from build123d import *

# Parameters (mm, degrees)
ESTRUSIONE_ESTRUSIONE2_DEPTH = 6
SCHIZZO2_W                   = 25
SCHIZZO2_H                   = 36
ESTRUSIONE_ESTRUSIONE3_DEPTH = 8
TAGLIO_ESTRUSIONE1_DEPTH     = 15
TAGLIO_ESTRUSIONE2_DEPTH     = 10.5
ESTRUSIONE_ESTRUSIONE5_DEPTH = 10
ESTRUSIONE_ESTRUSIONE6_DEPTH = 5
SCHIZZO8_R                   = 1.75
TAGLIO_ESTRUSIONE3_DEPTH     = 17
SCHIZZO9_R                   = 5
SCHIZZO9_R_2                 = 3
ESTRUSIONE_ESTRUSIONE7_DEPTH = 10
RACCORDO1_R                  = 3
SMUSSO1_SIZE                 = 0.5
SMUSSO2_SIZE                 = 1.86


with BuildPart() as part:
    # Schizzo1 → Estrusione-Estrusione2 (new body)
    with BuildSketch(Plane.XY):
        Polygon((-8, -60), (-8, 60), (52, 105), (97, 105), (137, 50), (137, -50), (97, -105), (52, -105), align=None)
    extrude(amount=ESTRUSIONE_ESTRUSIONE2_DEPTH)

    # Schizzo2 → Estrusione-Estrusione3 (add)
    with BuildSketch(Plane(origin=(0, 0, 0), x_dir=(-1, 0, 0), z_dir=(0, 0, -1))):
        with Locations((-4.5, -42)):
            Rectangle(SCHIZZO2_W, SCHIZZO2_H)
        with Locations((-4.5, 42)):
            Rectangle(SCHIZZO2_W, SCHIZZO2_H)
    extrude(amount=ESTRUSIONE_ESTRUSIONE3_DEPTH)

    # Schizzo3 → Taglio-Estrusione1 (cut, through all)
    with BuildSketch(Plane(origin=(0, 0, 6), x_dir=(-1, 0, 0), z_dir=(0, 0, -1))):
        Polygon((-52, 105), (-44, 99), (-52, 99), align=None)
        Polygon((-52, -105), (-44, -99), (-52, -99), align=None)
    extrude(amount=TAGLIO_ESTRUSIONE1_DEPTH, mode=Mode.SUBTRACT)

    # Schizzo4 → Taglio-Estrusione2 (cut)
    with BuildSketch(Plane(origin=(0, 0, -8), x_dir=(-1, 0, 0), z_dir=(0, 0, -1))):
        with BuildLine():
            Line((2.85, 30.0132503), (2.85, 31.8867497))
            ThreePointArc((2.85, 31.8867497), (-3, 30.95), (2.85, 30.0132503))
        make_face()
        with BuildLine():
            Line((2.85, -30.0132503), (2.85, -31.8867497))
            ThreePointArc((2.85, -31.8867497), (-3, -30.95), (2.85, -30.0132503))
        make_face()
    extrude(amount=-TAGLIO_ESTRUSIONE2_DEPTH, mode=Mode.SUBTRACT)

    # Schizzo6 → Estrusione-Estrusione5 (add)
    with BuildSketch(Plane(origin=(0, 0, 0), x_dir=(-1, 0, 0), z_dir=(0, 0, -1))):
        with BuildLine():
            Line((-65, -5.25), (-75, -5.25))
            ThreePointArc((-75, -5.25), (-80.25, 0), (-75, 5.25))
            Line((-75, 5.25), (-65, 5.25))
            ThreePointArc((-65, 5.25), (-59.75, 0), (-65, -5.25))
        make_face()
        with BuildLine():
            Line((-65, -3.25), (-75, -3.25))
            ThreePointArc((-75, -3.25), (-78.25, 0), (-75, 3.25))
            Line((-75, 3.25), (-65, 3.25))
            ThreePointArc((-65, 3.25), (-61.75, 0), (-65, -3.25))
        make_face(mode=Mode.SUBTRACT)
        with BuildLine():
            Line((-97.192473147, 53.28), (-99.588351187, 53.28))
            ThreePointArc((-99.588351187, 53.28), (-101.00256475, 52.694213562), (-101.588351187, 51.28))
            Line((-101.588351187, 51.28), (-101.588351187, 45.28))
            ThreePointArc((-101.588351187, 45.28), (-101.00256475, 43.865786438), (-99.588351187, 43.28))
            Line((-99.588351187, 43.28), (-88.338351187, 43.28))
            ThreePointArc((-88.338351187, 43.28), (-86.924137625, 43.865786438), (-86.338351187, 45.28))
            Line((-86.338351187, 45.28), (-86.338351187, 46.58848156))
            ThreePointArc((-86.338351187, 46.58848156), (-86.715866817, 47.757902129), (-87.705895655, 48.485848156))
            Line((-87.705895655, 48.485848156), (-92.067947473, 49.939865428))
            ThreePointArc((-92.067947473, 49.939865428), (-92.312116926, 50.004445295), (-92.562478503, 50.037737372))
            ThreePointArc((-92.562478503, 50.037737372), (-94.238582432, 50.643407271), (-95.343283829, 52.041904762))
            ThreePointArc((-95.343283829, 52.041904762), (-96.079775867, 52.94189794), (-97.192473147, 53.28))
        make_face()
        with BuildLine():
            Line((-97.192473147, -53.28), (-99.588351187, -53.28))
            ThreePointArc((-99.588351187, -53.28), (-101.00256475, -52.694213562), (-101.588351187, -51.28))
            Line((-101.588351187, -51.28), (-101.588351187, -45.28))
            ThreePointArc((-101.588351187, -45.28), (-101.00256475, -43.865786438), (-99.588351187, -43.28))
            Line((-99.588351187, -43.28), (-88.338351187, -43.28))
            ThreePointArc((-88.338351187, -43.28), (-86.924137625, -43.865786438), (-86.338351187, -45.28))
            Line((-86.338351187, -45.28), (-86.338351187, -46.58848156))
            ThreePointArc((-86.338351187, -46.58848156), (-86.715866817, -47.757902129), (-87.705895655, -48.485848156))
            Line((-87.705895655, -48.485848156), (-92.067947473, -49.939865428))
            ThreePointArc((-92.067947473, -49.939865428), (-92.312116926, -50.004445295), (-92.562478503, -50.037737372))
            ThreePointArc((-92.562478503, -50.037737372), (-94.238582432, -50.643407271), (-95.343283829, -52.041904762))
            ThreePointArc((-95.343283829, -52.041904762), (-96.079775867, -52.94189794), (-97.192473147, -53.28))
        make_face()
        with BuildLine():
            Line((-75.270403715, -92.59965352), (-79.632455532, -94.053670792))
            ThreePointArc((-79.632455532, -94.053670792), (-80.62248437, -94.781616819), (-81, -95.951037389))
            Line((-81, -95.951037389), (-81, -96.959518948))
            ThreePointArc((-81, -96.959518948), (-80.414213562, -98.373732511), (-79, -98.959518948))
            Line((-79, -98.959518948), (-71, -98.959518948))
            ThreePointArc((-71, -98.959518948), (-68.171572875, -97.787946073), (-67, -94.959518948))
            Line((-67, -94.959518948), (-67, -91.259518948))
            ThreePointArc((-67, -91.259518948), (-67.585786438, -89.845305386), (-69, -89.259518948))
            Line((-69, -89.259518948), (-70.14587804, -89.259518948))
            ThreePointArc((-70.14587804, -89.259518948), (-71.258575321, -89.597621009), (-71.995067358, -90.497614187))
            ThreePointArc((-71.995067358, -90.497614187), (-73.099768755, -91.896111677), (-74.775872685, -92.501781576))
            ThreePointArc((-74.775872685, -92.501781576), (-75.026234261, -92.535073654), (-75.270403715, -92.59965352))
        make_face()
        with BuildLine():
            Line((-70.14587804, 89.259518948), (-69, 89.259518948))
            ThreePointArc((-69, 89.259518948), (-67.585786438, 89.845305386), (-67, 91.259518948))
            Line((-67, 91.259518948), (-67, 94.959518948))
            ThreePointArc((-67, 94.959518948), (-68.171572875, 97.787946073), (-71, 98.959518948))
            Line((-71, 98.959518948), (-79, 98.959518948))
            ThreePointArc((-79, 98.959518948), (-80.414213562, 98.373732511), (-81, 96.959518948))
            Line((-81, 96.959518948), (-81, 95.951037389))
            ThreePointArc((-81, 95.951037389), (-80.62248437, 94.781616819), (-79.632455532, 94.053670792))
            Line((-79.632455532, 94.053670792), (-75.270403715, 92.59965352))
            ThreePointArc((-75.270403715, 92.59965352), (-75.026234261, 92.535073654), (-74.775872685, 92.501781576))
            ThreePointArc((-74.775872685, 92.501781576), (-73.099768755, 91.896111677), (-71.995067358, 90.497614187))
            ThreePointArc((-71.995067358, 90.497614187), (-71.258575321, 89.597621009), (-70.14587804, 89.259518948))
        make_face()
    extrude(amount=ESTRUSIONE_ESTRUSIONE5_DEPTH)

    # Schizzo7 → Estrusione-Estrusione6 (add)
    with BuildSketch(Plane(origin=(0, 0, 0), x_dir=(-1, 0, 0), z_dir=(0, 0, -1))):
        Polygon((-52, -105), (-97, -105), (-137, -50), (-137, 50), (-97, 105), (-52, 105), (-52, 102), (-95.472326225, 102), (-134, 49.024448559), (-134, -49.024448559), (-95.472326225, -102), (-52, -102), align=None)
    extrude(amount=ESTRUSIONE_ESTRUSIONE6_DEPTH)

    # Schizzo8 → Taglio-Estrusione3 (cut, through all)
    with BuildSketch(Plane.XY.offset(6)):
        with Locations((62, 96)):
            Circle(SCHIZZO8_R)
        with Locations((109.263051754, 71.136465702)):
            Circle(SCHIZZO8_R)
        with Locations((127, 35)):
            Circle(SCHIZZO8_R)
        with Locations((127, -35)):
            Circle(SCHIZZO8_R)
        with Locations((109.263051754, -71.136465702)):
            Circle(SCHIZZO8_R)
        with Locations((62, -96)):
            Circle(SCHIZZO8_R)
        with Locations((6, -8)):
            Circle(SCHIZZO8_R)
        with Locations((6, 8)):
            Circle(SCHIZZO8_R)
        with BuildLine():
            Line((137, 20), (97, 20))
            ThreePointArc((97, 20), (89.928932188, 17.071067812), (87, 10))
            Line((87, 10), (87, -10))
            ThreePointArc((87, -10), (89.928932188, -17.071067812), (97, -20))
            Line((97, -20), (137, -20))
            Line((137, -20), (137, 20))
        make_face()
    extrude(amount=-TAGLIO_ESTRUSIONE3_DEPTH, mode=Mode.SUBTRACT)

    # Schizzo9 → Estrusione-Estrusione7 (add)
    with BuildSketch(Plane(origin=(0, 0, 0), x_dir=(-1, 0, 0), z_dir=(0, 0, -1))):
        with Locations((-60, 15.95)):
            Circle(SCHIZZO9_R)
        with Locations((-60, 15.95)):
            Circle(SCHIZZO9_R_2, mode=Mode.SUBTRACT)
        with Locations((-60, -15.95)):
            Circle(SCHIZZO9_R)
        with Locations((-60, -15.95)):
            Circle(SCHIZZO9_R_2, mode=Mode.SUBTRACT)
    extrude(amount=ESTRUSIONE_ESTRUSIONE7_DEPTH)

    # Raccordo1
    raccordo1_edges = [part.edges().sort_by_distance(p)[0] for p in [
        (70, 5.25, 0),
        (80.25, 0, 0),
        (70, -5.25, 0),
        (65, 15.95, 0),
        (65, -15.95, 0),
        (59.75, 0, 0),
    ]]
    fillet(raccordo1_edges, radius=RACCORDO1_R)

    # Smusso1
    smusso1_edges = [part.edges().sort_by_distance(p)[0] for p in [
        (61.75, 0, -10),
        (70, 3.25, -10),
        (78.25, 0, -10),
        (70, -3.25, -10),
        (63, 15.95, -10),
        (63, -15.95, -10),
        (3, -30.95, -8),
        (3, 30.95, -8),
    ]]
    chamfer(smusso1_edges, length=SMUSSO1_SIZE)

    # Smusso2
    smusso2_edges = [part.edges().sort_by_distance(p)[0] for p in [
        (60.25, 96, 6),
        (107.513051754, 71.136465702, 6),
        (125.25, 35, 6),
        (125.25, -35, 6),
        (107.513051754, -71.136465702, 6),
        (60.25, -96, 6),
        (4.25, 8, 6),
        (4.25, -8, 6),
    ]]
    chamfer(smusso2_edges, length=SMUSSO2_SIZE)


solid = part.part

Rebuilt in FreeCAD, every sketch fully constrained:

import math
import FreeCAD as App
import Part
import Sketcher
from FreeCAD import Vector
Q = App.Units.Quantity


def edges_at(feature, points):
    """Names of the edges that pass closest to the given points."""
    edges = feature.Shape.Edges
    near = lambda p: min(range(len(edges)), key=lambda i: edges[i].distToShape(Part.Vertex(*p))[0])
    return sorted({f"Edge{near(p) + 1}" for p in points})

doc = App.newDocument("Part")
body = doc.addObject("PartDesign::Body", "Body")

sketch1 = doc.addObject("Sketcher::SketchObject", "Sketch")
body.addObject(sketch1)
sketch1.AttachmentSupport = (doc.XY_Plane, [""])
sketch1.MapMode = "FlatFace"
sketch1.addGeometry([
    Part.LineSegment(Vector(-8, 60, 0), Vector(-8, -60, 0)),
    Part.LineSegment(Vector(-8, -60, 0), Vector(52, -105, 0)),
    Part.LineSegment(Vector(52, -105, 0), Vector(97, -105, 0)),
    Part.LineSegment(Vector(97, -105, 0), Vector(137, -50, 0)),
    Part.LineSegment(Vector(137, -50, 0), Vector(137, 50, 0)),
    Part.LineSegment(Vector(137, 50, 0), Vector(97, 105, 0)),
    Part.LineSegment(Vector(97, 105, 0), Vector(52, 105, 0)),
    Part.LineSegment(Vector(52, 105, 0), Vector(-8, 60, 0)),
], False)
sketch1.addConstraint([
    Sketcher.Constraint("Coincident", 0, 2, 1, 1),
    Sketcher.Constraint("Coincident", 1, 2, 2, 1),
    Sketcher.Constraint("Coincident", 2, 2, 3, 1),
    Sketcher.Constraint("Coincident", 3, 2, 4, 1),
    Sketcher.Constraint("Coincident", 4, 2, 5, 1),
    Sketcher.Constraint("Coincident", 5, 2, 6, 1),
    Sketcher.Constraint("Coincident", 6, 2, 7, 1),
    Sketcher.Constraint("Coincident", 7, 2, 0, 1),
    Sketcher.Constraint("Vertical", 0),
    Sketcher.Constraint("Horizontal", 2),
    Sketcher.Constraint("Vertical", 4),
    Sketcher.Constraint("Horizontal", 6),
    Sketcher.Constraint("Symmetric", 2, 2, 5, 2, -1),
    Sketcher.Constraint("Vertical", 1, 2, 6, 2),
    Sketcher.Constraint("Equal", 3, 5),
    Sketcher.Constraint("Equal", 1, 7),
    Sketcher.Constraint("DistanceX", 2, 1, 2, 2, Q("45 mm")),
    Sketcher.Constraint("DistanceY", 0, 2, 0, 1, Q("120 mm")),
    Sketcher.Constraint("DistanceY", 4, 1, 4, 2, Q("100 mm")),
    Sketcher.Constraint("Distance", 1, Q("75 mm")),
    Sketcher.Constraint("DistanceX", 0, 2, -1, 1, Q("8 mm")),
    Sketcher.Constraint("DistanceX", -1, 1, 1, 2, Q("52 mm")),
    Sketcher.Constraint("DistanceX", -1, 1, 3, 2, Q("137 mm")),
])
pad1 = doc.addObject("PartDesign::Pad", "Pad")
body.addObject(pad1)
pad1.Profile = sketch1
pad1.Length = 6

sketch2 = doc.addObject("Sketcher::SketchObject", "Sketch001")
body.addObject(sketch2)
sketch2.AttachmentSupport = (doc.XY_Plane, [""])
sketch2.MapMode = "FlatFace"
sketch2.addGeometry([
    Part.LineSegment(Vector(17, -24, 0), Vector(17, -60, 0)),
    Part.LineSegment(Vector(17, -60, 0), Vector(-8, -60, 0)),
    Part.LineSegment(Vector(-8, -60, 0), Vector(-8, -24, 0)),
    Part.LineSegment(Vector(-8, -24, 0), Vector(17, -24, 0)),
    Part.LineSegment(Vector(17, 60, 0), Vector(17, 24, 0)),
    Part.LineSegment(Vector(17, 24, 0), Vector(-8, 24, 0)),
    Part.LineSegment(Vector(-8, 24, 0), Vector(-8, 60, 0)),
    Part.LineSegment(Vector(-8, 60, 0), Vector(17, 60, 0)),
], False)
sketch2.addConstraint([
    Sketcher.Constraint("Coincident", 0, 2, 1, 1),
    Sketcher.Constraint("Coincident", 1, 2, 2, 1),
    Sketcher.Constraint("Coincident", 2, 2, 3, 1),
    Sketcher.Constraint("Coincident", 3, 2, 0, 1),
    Sketcher.Constraint("Coincident", 4, 2, 5, 1),
    Sketcher.Constraint("Coincident", 5, 2, 6, 1),
    Sketcher.Constraint("Coincident", 6, 2, 7, 1),
    Sketcher.Constraint("Coincident", 7, 2, 4, 1),
    Sketcher.Constraint("Vertical", 0),
    Sketcher.Constraint("Horizontal", 1),
    Sketcher.Constraint("Vertical", 2),
    Sketcher.Constraint("Horizontal", 3),
    Sketcher.Constraint("Vertical", 4),
    Sketcher.Constraint("Horizontal", 5),
    Sketcher.Constraint("Vertical", 6),
    Sketcher.Constraint("Horizontal", 7),
    Sketcher.Constraint("Symmetric", 3, 2, 4, 2, -1),
    Sketcher.Constraint("Symmetric", 1, 2, 6, 2, -1),
    Sketcher.Constraint("DistanceX", 1, 2, 1, 1, Q("25 mm")),
    Sketcher.Constraint("DistanceY", 0, 2, 0, 1, Q("36 mm")),
    Sketcher.Constraint("DistanceX", -1, 1, 0, 2, Q("17 mm")),
    Sketcher.Constraint("DistanceY", 0, 2, -1, 1, Q("60 mm")),
])
pad2 = doc.addObject("PartDesign::Pad", "Pad001")
body.addObject(pad2)
pad2.Profile = sketch2
pad2.Length = 8
pad2.Reversed = True

sketch3 = doc.addObject("Sketcher::SketchObject", "Sketch002")
body.addObject(sketch3)
sketch3.AttachmentSupport = (doc.XY_Plane, [""])
sketch3.MapMode = "FlatFace"
sketch3.AttachmentOffset = App.Placement(Vector(0, 0, 6), App.Rotation())
sketch3.addGeometry([
    Part.LineSegment(Vector(44, 99, 0), Vector(52, 105, 0)),
    Part.LineSegment(Vector(52, 105, 0), Vector(52, 99, 0)),
    Part.LineSegment(Vector(52, 99, 0), Vector(44, 99, 0)),
    Part.LineSegment(Vector(52, -105, 0), Vector(44, -99, 0)),
    Part.LineSegment(Vector(44, -99, 0), Vector(52, -99, 0)),
    Part.LineSegment(Vector(52, -99, 0), Vector(52, -105, 0)),
], False)
sketch3.addConstraint([
    Sketcher.Constraint("Coincident", 0, 2, 1, 1),
    Sketcher.Constraint("Coincident", 1, 2, 2, 1),
    Sketcher.Constraint("Coincident", 2, 2, 0, 1),
    Sketcher.Constraint("Coincident", 3, 2, 4, 1),
    Sketcher.Constraint("Coincident", 4, 2, 5, 1),
    Sketcher.Constraint("Coincident", 5, 2, 3, 1),
    Sketcher.Constraint("Vertical", 1),
    Sketcher.Constraint("Horizontal", 2),
    Sketcher.Constraint("Horizontal", 4),
    Sketcher.Constraint("Vertical", 5),
    Sketcher.Constraint("Symmetric", 2, 2, 3, 2, -1),
    Sketcher.Constraint("Symmetric", 0, 2, 5, 2, -1),
    Sketcher.Constraint("DistanceX", 2, 2, 2, 1, Q("8 mm")),
    Sketcher.Constraint("DistanceY", 1, 2, 1, 1, Q("6 mm")),
    Sketcher.Constraint("DistanceX", -1, 1, 0, 2, Q("52 mm")),
    Sketcher.Constraint("DistanceY", -1, 1, 0, 2, Q("105 mm")),
])
pocket1 = doc.addObject("PartDesign::Pocket", "Pocket")
body.addObject(pocket1)
pocket1.Profile = sketch3
pocket1.Type = "ThroughAll"

sketch4 = doc.addObject("Sketcher::SketchObject", "Sketch003")
body.addObject(sketch4)
sketch4.AttachmentSupport = (doc.XY_Plane, [""])
sketch4.MapMode = "FlatFace"
sketch4.AttachmentOffset = App.Placement(Vector(0, 0, -8), App.Rotation())
sketch4.addGeometry([
    Part.LineSegment(Vector(-2.9, 30, 0), Vector(-2.9, 31.9, 0)),
    Part.ArcOfCircle(Part.Circle(Vector(0, 30.9, 0), Vector(0, 0, 1), 3), math.radians(-162), math.radians(162)),
    Part.LineSegment(Vector(-2.9, -31.9, 0), Vector(-2.9, -30, 0)),
    Part.ArcOfCircle(Part.Circle(Vector(0, -30.9, 0), Vector(0, 0, 1), 3), math.radians(-162), math.radians(162)),
], False)
sketch4.addConstraint([
    Sketcher.Constraint("Coincident", 0, 1, 1, 1),
    Sketcher.Constraint("Coincident", 1, 2, 0, 2),
    Sketcher.Constraint("Coincident", 2, 1, 3, 1),
    Sketcher.Constraint("Coincident", 3, 2, 2, 2),
    Sketcher.Constraint("Vertical", 0),
    Sketcher.Constraint("Vertical", 2),
    Sketcher.Constraint("Equal", 1, 3),
    Sketcher.Constraint("Symmetric", 1, 3, 3, 3, -1, 1),
    Sketcher.Constraint("Symmetric", 1, 2, 2, 1, -1),
    Sketcher.Constraint("Radius", 1, Q("3 mm")),
    Sketcher.Constraint("DistanceY", 3, 3, 1, 3, Q("61.9 mm")),
    Sketcher.Constraint("DistanceX", 0, 1, -1, 1, Q("2.85 mm")),
])
pocket2 = doc.addObject("PartDesign::Pocket", "Pocket001")
body.addObject(pocket2)
pocket2.Profile = sketch4
pocket2.Length = 10.5
pocket2.Reversed = True

sketch5 = doc.addObject("Sketcher::SketchObject", "Sketch004")
body.addObject(sketch5)
sketch5.AttachmentSupport = (doc.XY_Plane, [""])
sketch5.MapMode = "FlatFace"
sketch5.addGeometry([
    Part.LineSegment(Vector(75, -5.2, 0), Vector(65, -5.2, 0)),
    Part.ArcOfCircle(Part.Circle(Vector(65, 0, 0), Vector(0, 0, 1), 5.2), math.radians(90), math.radians(270)),
    Part.LineSegment(Vector(65, 5.2, 0), Vector(75, 5.2, 0)),
    Part.ArcOfCircle(Part.Circle(Vector(75, 0, 0), Vector(0, 0, 1), 5.2), math.radians(-90), math.radians(90)),
    Part.LineSegment(Vector(65, -3.2, 0), Vector(75, -3.2, 0)),
    Part.ArcOfCircle(Part.Circle(Vector(75, 0, 0), Vector(0, 0, 1), 3.2), math.radians(-90), math.radians(90)),
    Part.LineSegment(Vector(75, 3.2, 0), Vector(65, 3.2, 0)),
    Part.ArcOfCircle(Part.Circle(Vector(65, 0, 0), Vector(0, 0, 1), 3.2), math.radians(90), math.radians(270)),
    Part.LineSegment(Vector(97.2, 53.3, 0), Vector(99.6, 53.3, 0)),
    Part.ArcOfCircle(Part.Circle(Vector(99.6, 51.3, 0), Vector(0, 0, 1), 2), math.radians(0), math.radians(90)),
    Part.LineSegment(Vector(101.6, 51.3, 0), Vector(101.6, 45.3, 0)),
    Part.ArcOfCircle(Part.Circle(Vector(99.6, 45.3, 0), Vector(0, 0, 1), 2), math.radians(-90), math.radians(0)),
    Part.LineSegment(Vector(99.6, 43.3, 0), Vector(88.3, 43.3, 0)),
    Part.ArcOfCircle(Part.Circle(Vector(88.3, 45.3, 0), Vector(0, 0, 1), 2), math.radians(-180), math.radians(-90)),
    Part.LineSegment(Vector(86.3, 45.3, 0), Vector(86.3, 46.6, 0)),
    Part.ArcOfCircle(Part.Circle(Vector(88.3, 46.6, 0), Vector(0, 0, 1), 2), math.radians(108), math.radians(180)),
    Part.LineSegment(Vector(87.7, 48.5, 0), Vector(92.1, 49.9, 0)),
    Part.ArcOfCircle(Part.Circle(Vector(92.7, 48, 0), Vector(0, 0, 1), 2), math.radians(93.95), math.radians(108.43)),
    Part.ArcOfCircle(Part.Circle(Vector(92.3, 53.3, 0), Vector(0, 0, 1), 3.2), math.radians(-86), math.radians(-22)),
    Part.ArcOfCircle(Part.Circle(Vector(97.2, 51.3, 0), Vector(0, 0, 1), 2), math.radians(90), math.radians(158)),
    Part.LineSegment(Vector(99.6, -53.3, 0), Vector(97.2, -53.3, 0)),
    Part.ArcOfCircle(Part.Circle(Vector(97.2, -51.3, 0), Vector(0, 0, 1), 2), math.radians(-158), math.radians(-90)),
    Part.ArcOfCircle(Part.Circle(Vector(92.3, -53.3, 0), Vector(0, 0, 1), 3.2), math.radians(22), math.radians(86)),
    Part.ArcOfCircle(Part.Circle(Vector(92.7, -48, 0), Vector(0, 0, 1), 2), math.radians(-108.43), math.radians(-93.95)),
    Part.LineSegment(Vector(92.1, -49.9, 0), Vector(87.7, -48.5, 0)),
    Part.ArcOfCircle(Part.Circle(Vector(88.3, -46.6, 0), Vector(0, 0, 1), 2), math.radians(-180), math.radians(-108)),
    Part.LineSegment(Vector(86.3, -46.6, 0), Vector(86.3, -45.3, 0)),
    Part.ArcOfCircle(Part.Circle(Vector(88.3, -45.3, 0), Vector(0, 0, 1), 2), math.radians(90), math.radians(180)),
    Part.LineSegment(Vector(88.3, -43.3, 0), Vector(99.6, -43.3, 0)),
    Part.ArcOfCircle(Part.Circle(Vector(99.6, -45.3, 0), Vector(0, 0, 1), 2), math.radians(0), math.radians(90)),
    Part.LineSegment(Vector(101.6, -45.3, 0), Vector(101.6, -51.3, 0)),
    Part.ArcOfCircle(Part.Circle(Vector(99.6, -51.3, 0), Vector(0, 0, 1), 2), math.radians(-90), math.radians(0)),
    Part.LineSegment(Vector(75.3, -92.6, 0), Vector(79.6, -94.1, 0)),
    Part.ArcOfCircle(Part.Circle(Vector(79, -96, 0), Vector(0, 0, 1), 2), math.radians(0), math.radians(72)),
    Part.LineSegment(Vector(81, -96, 0), Vector(81, -97, 0)),
    Part.ArcOfCircle(Part.Circle(Vector(79, -97, 0), Vector(0, 0, 1), 2), math.radians(-90), math.radians(0)),
    Part.LineSegment(Vector(79, -99, 0), Vector(71, -99, 0)),
    Part.ArcOfCircle(Part.Circle(Vector(71, -95, 0), Vector(0, 0, 1), 4), math.radians(180), math.radians(270)),
    Part.LineSegment(Vector(67, -95, 0), Vector(67, -91.3, 0)),
    Part.ArcOfCircle(Part.Circle(Vector(69, -91.3, 0), Vector(0, 0, 1), 2), math.radians(90), math.radians(180)),
    Part.LineSegment(Vector(69, -89.3, 0), Vector(70.1, -89.3, 0)),
    Part.ArcOfCircle(Part.Circle(Vector(70.1, -91.3, 0), Vector(0, 0, 1), 2), math.radians(22), math.radians(90)),
    Part.ArcOfCircle(Part.Circle(Vector(75, -89.3, 0), Vector(0, 0, 1), 3.2), math.radians(-158), math.radians(-94)),
    Part.ArcOfCircle(Part.Circle(Vector(74.6, -94.5, 0), Vector(0, 0, 1), 2), math.radians(71.57), math.radians(86.05)),
    Part.LineSegment(Vector(70.1, 89.3, 0), Vector(69, 89.3, 0)),
    Part.ArcOfCircle(Part.Circle(Vector(69, 91.3, 0), Vector(0, 0, 1), 2), math.radians(-180), math.radians(-90)),
    Part.LineSegment(Vector(67, 91.3, 0), Vector(67, 95, 0)),
    Part.ArcOfCircle(Part.Circle(Vector(71, 95, 0), Vector(0, 0, 1), 4), math.radians(90), math.radians(180)),
    Part.LineSegment(Vector(71, 99, 0), Vector(79, 99, 0)),
    Part.ArcOfCircle(Part.Circle(Vector(79, 97, 0), Vector(0, 0, 1), 2), math.radians(0), math.radians(90)),
    Part.LineSegment(Vector(81, 97, 0), Vector(81, 96, 0)),
    Part.ArcOfCircle(Part.Circle(Vector(79, 96, 0), Vector(0, 0, 1), 2), math.radians(-72), math.radians(0)),
    Part.LineSegment(Vector(79.6, 94.1, 0), Vector(75.3, 92.6, 0)),
    Part.ArcOfCircle(Part.Circle(Vector(74.6, 94.5, 0), Vector(0, 0, 1), 2), math.radians(-86.05), math.radians(-71.57)),
    Part.ArcOfCircle(Part.Circle(Vector(75, 89.3, 0), Vector(0, 0, 1), 3.2), math.radians(94), math.radians(158)),
    Part.ArcOfCircle(Part.Circle(Vector(70.1, 91.3, 0), Vector(0, 0, 1), 2), math.radians(-90), math.radians(-22)),
], False)
sketch5.addConstraint([
    Sketcher.Constraint("Tangent", 0, 2, 1, 2),
    Sketcher.Constraint("Tangent", 1, 1, 2, 1),
    Sketcher.Constraint("Tangent", 2, 2, 3, 2),
    Sketcher.Constraint("Tangent", 3, 1, 0, 1),
    Sketcher.Constraint("Tangent", 4, 2, 5, 1),
    Sketcher.Constraint("Tangent", 5, 2, 6, 1),
    Sketcher.Constraint("Tangent", 6, 2, 7, 1),
    Sketcher.Constraint("Tangent", 7, 2, 4, 1),
    Sketcher.Constraint("Tangent", 8, 2, 9, 2),
    Sketcher.Constraint("Tangent", 9, 1, 10, 1),
    Sketcher.Constraint("Tangent", 10, 2, 11, 2),
    Sketcher.Constraint("Tangent", 11, 1, 12, 1),
    Sketcher.Constraint("Tangent", 12, 2, 13, 2),
    Sketcher.Constraint("Tangent", 13, 1, 14, 1),
    Sketcher.Constraint("Tangent", 14, 2, 15, 2),
    Sketcher.Constraint("Tangent", 15, 1, 16, 1),
    Sketcher.Constraint("Tangent", 16, 2, 17, 2),
    Sketcher.Constraint("Tangent", 17, 1, 18, 1),
    Sketcher.Constraint("Tangent", 18, 2, 19, 2),
    Sketcher.Constraint("Tangent", 19, 1, 8, 1),
    Sketcher.Constraint("Tangent", 20, 2, 21, 2),
    Sketcher.Constraint("Tangent", 21, 1, 22, 1),
    Sketcher.Constraint("Tangent", 22, 2, 23, 2),
    Sketcher.Constraint("Tangent", 23, 1, 24, 1),
    Sketcher.Constraint("Tangent", 24, 2, 25, 2),
    Sketcher.Constraint("Tangent", 25, 1, 26, 1),
    Sketcher.Constraint("Tangent", 26, 2, 27, 2),
    Sketcher.Constraint("Tangent", 27, 1, 28, 1),
    Sketcher.Constraint("Tangent", 28, 2, 29, 2),
    Sketcher.Constraint("Tangent", 29, 1, 30, 1),
    Sketcher.Constraint("Tangent", 30, 2, 31, 2),
    Sketcher.Constraint("Tangent", 31, 1, 20, 1),
    Sketcher.Constraint("Tangent", 32, 2, 33, 2),
    Sketcher.Constraint("Tangent", 33, 1, 34, 1),
    Sketcher.Constraint("Tangent", 34, 2, 35, 2),
    Sketcher.Constraint("Tangent", 35, 1, 36, 1),
    Sketcher.Constraint("Tangent", 36, 2, 37, 2),
    Sketcher.Constraint("Tangent", 37, 1, 38, 1),
    Sketcher.Constraint("Tangent", 38, 2, 39, 2),
    Sketcher.Constraint("Tangent", 39, 1, 40, 1),
    Sketcher.Constraint("Tangent", 40, 2, 41, 2),
    Sketcher.Constraint("Tangent", 41, 1, 42, 1),
    Sketcher.Constraint("Tangent", 42, 2, 43, 2),
    Sketcher.Constraint("Tangent", 43, 1, 32, 1),
    Sketcher.Constraint("Tangent", 44, 2, 45, 2),
    Sketcher.Constraint("Tangent", 45, 1, 46, 1),
    Sketcher.Constraint("Tangent", 46, 2, 47, 2),
    Sketcher.Constraint("Tangent", 47, 1, 48, 1),
    Sketcher.Constraint("Tangent", 48, 2, 49, 2),
    Sketcher.Constraint("Tangent", 49, 1, 50, 1),
    Sketcher.Constraint("Tangent", 50, 2, 51, 2),
    Sketcher.Constraint("Tangent", 51, 1, 52, 1),
    Sketcher.Constraint("Tangent", 52, 2, 53, 2),
    Sketcher.Constraint("Tangent", 53, 1, 54, 1),
    Sketcher.Constraint("Tangent", 54, 2, 55, 2),
    Sketcher.Constraint("Tangent", 55, 1, 44, 1),
    Sketcher.Constraint("Horizontal", 0),
    Sketcher.Constraint("Horizontal", 2),
    Sketcher.Constraint("Horizontal", 4),
    Sketcher.Constraint("Horizontal", 6),
    Sketcher.Constraint("Horizontal", 8),
    Sketcher.Constraint("Vertical", 10),
    Sketcher.Constraint("Horizontal", 12),
    Sketcher.Constraint("Vertical", 14),
    Sketcher.Constraint("Horizontal", 20),
    Sketcher.Constraint("Vertical", 26),
    Sketcher.Constraint("Horizontal", 28),
    Sketcher.Constraint("Vertical", 30),
    Sketcher.Constraint("Vertical", 34),
    Sketcher.Constraint("Horizontal", 36),
    Sketcher.Constraint("Vertical", 38),
    Sketcher.Constraint("Horizontal", 40),
    Sketcher.Constraint("Horizontal", 44),
    Sketcher.Constraint("Vertical", 46),
    Sketcher.Constraint("Horizontal", 48),
    Sketcher.Constraint("Vertical", 50),
    Sketcher.Constraint("Coincident", 5, 3, 3, 3),
    Sketcher.Constraint("Equal", 9, 11),
    Sketcher.Constraint("Equal", 11, 13),
    Sketcher.Constraint("Equal", 13, 15),
    Sketcher.Constraint("Equal", 15, 17),
    Sketcher.Constraint("Equal", 7, 18),
    Sketcher.Constraint("Equal", 17, 19),
    Sketcher.Constraint("Equal", 19, 21),
    Sketcher.Constraint("Equal", 18, 22),
    Sketcher.Constraint("Equal", 21, 23),
    Sketcher.Constraint("Equal", 23, 25),
    Sketcher.Constraint("Equal", 25, 27),
    Sketcher.Constraint("Equal", 27, 29),
    Sketcher.Constraint("Equal", 29, 31),
    Sketcher.Constraint("Equal", 31, 33),
    Sketcher.Constraint("Equal", 33, 35),
    Sketcher.Constraint("Equal", 35, 39),
    Sketcher.Constraint("Equal", 39, 41),
    Sketcher.Constraint("Equal", 22, 42),
    Sketcher.Constraint("Equal", 41, 43),
    Sketcher.Constraint("Equal", 43, 45),
    Sketcher.Constraint("Equal", 37, 47),
    Sketcher.Constraint("Equal", 45, 49),
    Sketcher.Constraint("Equal", 49, 51),
    Sketcher.Constraint("Equal", 51, 53),
    Sketcher.Constraint("Equal", 42, 54),
    Sketcher.Constraint("Equal", 53, 55),
    Sketcher.Constraint("Symmetric", 19, 3, 21, 3, -1),
    Sketcher.Constraint("Symmetric", 17, 3, 23, 3, -1),
    Sketcher.Constraint("Symmetric", 15, 3, 25, 3, -1),
    Sketcher.Constraint("Symmetric", 11, 3, 29, 3, -1),
    Sketcher.Constraint("Symmetric", 39, 3, 45, 3, -1),
    Sketcher.Constraint("Symmetric", 35, 3, 49, 3, -1),
    Sketcher.Constraint("Symmetric", 43, 3, 53, 3, -1),
    Sketcher.Constraint("PointOnObject", 1, 3, -1),
    Sketcher.Constraint("Parallel", 24, 32),
    Sketcher.Constraint("Parallel", 16, 52),
    Sketcher.Constraint("Horizontal", 18, 3, 8, 2),
    Sketcher.Constraint("Horizontal", 42, 3, 39, 1),
    Sketcher.Constraint("Horizontal", 54, 3, 44, 2),
    Sketcher.Constraint("Vertical", 5, 3, 42, 3),
    Sketcher.Constraint("Vertical", 7, 3, 0, 2),
    Sketcher.Constraint("Equal", 24, 32),
    Sketcher.Constraint("Radius", 9, Q("2 mm")),
    Sketcher.Constraint("Radius", 37, Q("4 mm")),
    Sketcher.Constraint("DistanceX", 0, 2, 0, 1, Q("10 mm")),
    Sketcher.Constraint("DistanceX", 36, 2, 36, 1, Q("8 mm")),
    Sketcher.Constraint("DistanceY", 10, 2, 10, 1, Q("6 mm")),
    Sketcher.Constraint("Radius", 1, Q("5.25 mm")),
    Sketcher.Constraint("Radius", 5, Q("3.25 mm")),
    Sketcher.Constraint("DistanceY", 38, 1, 38, 2, Q("3.7 mm")),
    Sketcher.Constraint("DistanceX", -1, 1, 1, 3, Q("65 mm")),
    Sketcher.Constraint("DistanceX", -1, 1, 33, 3, Q("79 mm")),
    Sketcher.Constraint("DistanceX", 12, 2, 12, 1, Q("11.25 mm")),
    Sketcher.Constraint("DistanceY", -1, 1, 9, 3, Q("51.28 mm")),
    Sketcher.Constraint("DistanceX", 8, 1, 8, 2, Q("2.395878 mm")),
    Sketcher.Constraint("DistanceY", 14, 1, 14, 2, Q("1.308482 mm")),
    Sketcher.Constraint("DistanceY", -1, 1, 17, 3, Q("48.042499 mm")),
    Sketcher.Constraint("DistanceX", -1, 1, 9, 3, Q("99.588351 mm")),
    Sketcher.Constraint("DistanceY", 35, 3, -1, 1, Q("96.959519 mm")),
])
pad3 = doc.addObject("PartDesign::Pad", "Pad002")
body.addObject(pad3)
pad3.Profile = sketch5
pad3.Length = 10
pad3.Reversed = True

sketch6 = doc.addObject("Sketcher::SketchObject", "Sketch005")
body.addObject(sketch6)
sketch6.AttachmentSupport = (doc.XY_Plane, [""])
sketch6.MapMode = "FlatFace"
sketch6.addGeometry([
    Part.LineSegment(Vector(97, -105, 0), Vector(52, -105, 0)),
    Part.LineSegment(Vector(52, -105, 0), Vector(52, -102, 0)),
    Part.LineSegment(Vector(52, -102, 0), Vector(95.5, -102, 0)),
    Part.LineSegment(Vector(95.5, -102, 0), Vector(134, -49, 0)),
    Part.LineSegment(Vector(134, -49, 0), Vector(134, 49, 0)),
    Part.LineSegment(Vector(134, 49, 0), Vector(95.5, 102, 0)),
    Part.LineSegment(Vector(95.5, 102, 0), Vector(52, 102, 0)),
    Part.LineSegment(Vector(52, 102, 0), Vector(52, 105, 0)),
    Part.LineSegment(Vector(52, 105, 0), Vector(97, 105, 0)),
    Part.LineSegment(Vector(97, 105, 0), Vector(137, 50, 0)),
    Part.LineSegment(Vector(137, 50, 0), Vector(137, -50, 0)),
    Part.LineSegment(Vector(137, -50, 0), Vector(97, -105, 0)),
], False)
sketch6.addConstraint([
    Sketcher.Constraint("Coincident", 0, 2, 1, 1),
    Sketcher.Constraint("Coincident", 1, 2, 2, 1),
    Sketcher.Constraint("Coincident", 2, 2, 3, 1),
    Sketcher.Constraint("Coincident", 3, 2, 4, 1),
    Sketcher.Constraint("Coincident", 4, 2, 5, 1),
    Sketcher.Constraint("Coincident", 5, 2, 6, 1),
    Sketcher.Constraint("Coincident", 6, 2, 7, 1),
    Sketcher.Constraint("Coincident", 7, 2, 8, 1),
    Sketcher.Constraint("Coincident", 8, 2, 9, 1),
    Sketcher.Constraint("Coincident", 9, 2, 10, 1),
    Sketcher.Constraint("Coincident", 10, 2, 11, 1),
    Sketcher.Constraint("Coincident", 11, 2, 0, 1),
    Sketcher.Constraint("Horizontal", 0),
    Sketcher.Constraint("Vertical", 1),
    Sketcher.Constraint("Horizontal", 2),
    Sketcher.Constraint("Vertical", 4),
    Sketcher.Constraint("Horizontal", 6),
    Sketcher.Constraint("Vertical", 7),
    Sketcher.Constraint("Horizontal", 8),
    Sketcher.Constraint("Vertical", 10),
    Sketcher.Constraint("Symmetric", 2, 2, 5, 2, -1),
    Sketcher.Constraint("Symmetric", 0, 2, 7, 2, -1),
    Sketcher.Constraint("Parallel", 5, 9),
    Sketcher.Constraint("Parallel", 3, 11),
    Sketcher.Constraint("Vertical", 8, 2, 11, 2),
    Sketcher.Constraint("Equal", 3, 5),
    Sketcher.Constraint("DistanceX", 0, 2, 0, 1, Q("45 mm")),
    Sketcher.Constraint("DistanceY", 1, 1, 1, 2, Q("3 mm")),
    Sketcher.Constraint("DistanceY", 10, 2, 10, 1, Q("100 mm")),
    Sketcher.Constraint("DistanceX", -1, 1, 0, 2, Q("52 mm")),
    Sketcher.Constraint("DistanceY", 0, 2, -1, 1, Q("105 mm")),
    Sketcher.Constraint("DistanceX", -1, 1, 3, 2, Q("134 mm")),
    Sketcher.Constraint("DistanceX", -1, 1, 9, 2, Q("137 mm")),
    Sketcher.Constraint("DistanceX", 2, 1, 2, 2, Q("43.472326 mm")),
])
pad4 = doc.addObject("PartDesign::Pad", "Pad003")
body.addObject(pad4)
pad4.Profile = sketch6
pad4.Length = 5
pad4.Reversed = True

sketch7 = doc.addObject("Sketcher::SketchObject", "Sketch006")
body.addObject(sketch7)
sketch7.AttachmentSupport = (doc.XY_Plane, [""])
sketch7.MapMode = "FlatFace"
sketch7.AttachmentOffset = App.Placement(Vector(0, 0, 6), App.Rotation())
sketch7.addGeometry([
    Part.Circle(Vector(62, 96, 0), Vector(0, 0, 1), 1.8),
    Part.Circle(Vector(109.3, 71.1, 0), Vector(0, 0, 1), 1.8),
    Part.Circle(Vector(127, 35, 0), Vector(0, 0, 1), 1.8),
    Part.Circle(Vector(127, -35, 0), Vector(0, 0, 1), 1.8),
    Part.Circle(Vector(109.3, -71.1, 0), Vector(0, 0, 1), 1.8),
    Part.Circle(Vector(62, -96, 0), Vector(0, 0, 1), 1.8),
    Part.Circle(Vector(6, -8, 0), Vector(0, 0, 1), 1.8),
    Part.Circle(Vector(6, 8, 0), Vector(0, 0, 1), 1.8),
    Part.LineSegment(Vector(137, 20, 0), Vector(97, 20, 0)),
    Part.ArcOfCircle(Part.Circle(Vector(97, 10, 0), Vector(0, 0, 1), 10), math.radians(90), math.radians(180)),
    Part.LineSegment(Vector(87, 10, 0), Vector(87, -10, 0)),
    Part.ArcOfCircle(Part.Circle(Vector(97, -10, 0), Vector(0, 0, 1), 10), math.radians(180), math.radians(270)),
    Part.LineSegment(Vector(97, -20, 0), Vector(137, -20, 0)),
    Part.LineSegment(Vector(137, -20, 0), Vector(137, 20, 0)),
], False)
sketch7.addConstraint([
    Sketcher.Constraint("Tangent", 8, 2, 9, 1),
    Sketcher.Constraint("Tangent", 9, 2, 10, 1),
    Sketcher.Constraint("Tangent", 10, 2, 11, 1),
    Sketcher.Constraint("Tangent", 11, 2, 12, 1),
    Sketcher.Constraint("Coincident", 12, 2, 13, 1),
    Sketcher.Constraint("Coincident", 13, 2, 8, 1),
    Sketcher.Constraint("Horizontal", 8),
    Sketcher.Constraint("Vertical", 10),
    Sketcher.Constraint("Horizontal", 12),
    Sketcher.Constraint("Vertical", 13),
    Sketcher.Constraint("Equal", 0, 1),
    Sketcher.Constraint("Equal", 1, 2),
    Sketcher.Constraint("Equal", 2, 3),
    Sketcher.Constraint("Equal", 3, 4),
    Sketcher.Constraint("Equal", 4, 5),
    Sketcher.Constraint("Equal", 5, 6),
    Sketcher.Constraint("Equal", 6, 7),
    Sketcher.Constraint("Equal", 9, 11),
    Sketcher.Constraint("Symmetric", 2, 3, 3, 3, -1),
    Sketcher.Constraint("Symmetric", 1, 3, 4, 3, -1),
    Sketcher.Constraint("Symmetric", 0, 3, 5, 3, -1),
    Sketcher.Constraint("Symmetric", 6, 3, 7, 3, -1),
    Sketcher.Constraint("Equal", 12, 13),
    Sketcher.Constraint("Radius", 9, Q("10 mm")),
    Sketcher.Constraint("Diameter", 0, Q("3.5 mm")),
    Sketcher.Constraint("DistanceX", 8, 2, 8, 1, Q("40 mm")),
    Sketcher.Constraint("DistanceX", -1, 1, 0, 3, Q("62 mm")),
    Sketcher.Constraint("DistanceY", -1, 1, 0, 3, Q("96 mm")),
    Sketcher.Constraint("DistanceX", -1, 1, 2, 3, Q("127 mm")),
    Sketcher.Constraint("DistanceY", -1, 1, 2, 3, Q("35 mm")),
    Sketcher.Constraint("DistanceX", -1, 1, 6, 3, Q("6 mm")),
    Sketcher.Constraint("DistanceY", 6, 3, -1, 1, Q("8 mm")),
    Sketcher.Constraint("DistanceX", -1, 1, 9, 3, Q("97 mm")),
    Sketcher.Constraint("DistanceY", -1, 1, 9, 3, Q("10 mm")),
    Sketcher.Constraint("DistanceX", -1, 1, 1, 3, Q("109.263052 mm")),
    Sketcher.Constraint("DistanceY", 4, 3, 1, 3, Q("142.272931 mm")),
])
pocket3 = doc.addObject("PartDesign::Pocket", "Pocket002")
body.addObject(pocket3)
pocket3.Profile = sketch7
pocket3.Type = "ThroughAll"

sketch8 = doc.addObject("Sketcher::SketchObject", "Sketch007")
body.addObject(sketch8)
sketch8.AttachmentSupport = (doc.XY_Plane, [""])
sketch8.MapMode = "FlatFace"
sketch8.addGeometry([
    Part.Circle(Vector(60, 15.9, 0), Vector(0, 0, 1), 5),
    Part.Circle(Vector(60, 15.9, 0), Vector(0, 0, 1), 3),
    Part.Circle(Vector(60, -15.9, 0), Vector(0, 0, 1), 5),
    Part.Circle(Vector(60, -15.9, 0), Vector(0, 0, 1), 3),
], False)
sketch8.addConstraint([
    Sketcher.Constraint("Coincident", 1, 3, 0, 3),
    Sketcher.Constraint("Coincident", 3, 3, 2, 3),
    Sketcher.Constraint("Equal", 0, 2),
    Sketcher.Constraint("Equal", 1, 3),
    Sketcher.Constraint("Symmetric", 0, 3, 2, 3, -1),
    Sketcher.Constraint("Diameter", 0, Q("10 mm")),
    Sketcher.Constraint("Diameter", 1, Q("6 mm")),
    Sketcher.Constraint("DistanceX", -1, 1, 0, 3, Q("60 mm")),
    Sketcher.Constraint("DistanceY", 2, 3, 0, 3, Q("31.9 mm")),
])
pad5 = doc.addObject("PartDesign::Pad", "Pad004")
body.addObject(pad5)
pad5.Profile = sketch8
pad5.Length = 10
pad5.Reversed = True
doc.recompute()

fillet = doc.addObject("PartDesign::Fillet", "Fillet")
body.addObject(fillet)
fillet.Base = (pad5, edges_at(pad5, [
    (70, 5.25, 0),
    (80.25, 0, 0),
    (70, -5.25, 0),
    (65, 15.95, 0),
    (65, -15.95, 0),
    (59.75, 0, 0),
]))
fillet.Radius = 3
doc.recompute()

chamfer = doc.addObject("PartDesign::Chamfer", "Chamfer")
body.addObject(chamfer)
chamfer.Base = (fillet, edges_at(fillet, [
    (61.75, 0, -10),
    (70, 3.25, -10),
    (78.25, 0, -10),
    (70, -3.25, -10),
    (63, 15.95, -10),
    (63, -15.95, -10),
    (3, -30.95, -8),
    (3, 30.95, -8),
]))
chamfer.Size = 0.5
doc.recompute()

chamfer2 = doc.addObject("PartDesign::Chamfer", "Chamfer001")
body.addObject(chamfer2)
chamfer2.Base = (chamfer, edges_at(chamfer, [
    (60.25, 96, 6),
    (107.513, 71.136, 6),
    (125.25, 35, 6),
    (125.25, -35, 6),
    (107.513, -71.136, 6),
    (60.25, -96, 6),
    (4.25, 8, 6),
    (4.25, -8, 6),
]))
chamfer2.Size = 1.86

doc.recompute()
